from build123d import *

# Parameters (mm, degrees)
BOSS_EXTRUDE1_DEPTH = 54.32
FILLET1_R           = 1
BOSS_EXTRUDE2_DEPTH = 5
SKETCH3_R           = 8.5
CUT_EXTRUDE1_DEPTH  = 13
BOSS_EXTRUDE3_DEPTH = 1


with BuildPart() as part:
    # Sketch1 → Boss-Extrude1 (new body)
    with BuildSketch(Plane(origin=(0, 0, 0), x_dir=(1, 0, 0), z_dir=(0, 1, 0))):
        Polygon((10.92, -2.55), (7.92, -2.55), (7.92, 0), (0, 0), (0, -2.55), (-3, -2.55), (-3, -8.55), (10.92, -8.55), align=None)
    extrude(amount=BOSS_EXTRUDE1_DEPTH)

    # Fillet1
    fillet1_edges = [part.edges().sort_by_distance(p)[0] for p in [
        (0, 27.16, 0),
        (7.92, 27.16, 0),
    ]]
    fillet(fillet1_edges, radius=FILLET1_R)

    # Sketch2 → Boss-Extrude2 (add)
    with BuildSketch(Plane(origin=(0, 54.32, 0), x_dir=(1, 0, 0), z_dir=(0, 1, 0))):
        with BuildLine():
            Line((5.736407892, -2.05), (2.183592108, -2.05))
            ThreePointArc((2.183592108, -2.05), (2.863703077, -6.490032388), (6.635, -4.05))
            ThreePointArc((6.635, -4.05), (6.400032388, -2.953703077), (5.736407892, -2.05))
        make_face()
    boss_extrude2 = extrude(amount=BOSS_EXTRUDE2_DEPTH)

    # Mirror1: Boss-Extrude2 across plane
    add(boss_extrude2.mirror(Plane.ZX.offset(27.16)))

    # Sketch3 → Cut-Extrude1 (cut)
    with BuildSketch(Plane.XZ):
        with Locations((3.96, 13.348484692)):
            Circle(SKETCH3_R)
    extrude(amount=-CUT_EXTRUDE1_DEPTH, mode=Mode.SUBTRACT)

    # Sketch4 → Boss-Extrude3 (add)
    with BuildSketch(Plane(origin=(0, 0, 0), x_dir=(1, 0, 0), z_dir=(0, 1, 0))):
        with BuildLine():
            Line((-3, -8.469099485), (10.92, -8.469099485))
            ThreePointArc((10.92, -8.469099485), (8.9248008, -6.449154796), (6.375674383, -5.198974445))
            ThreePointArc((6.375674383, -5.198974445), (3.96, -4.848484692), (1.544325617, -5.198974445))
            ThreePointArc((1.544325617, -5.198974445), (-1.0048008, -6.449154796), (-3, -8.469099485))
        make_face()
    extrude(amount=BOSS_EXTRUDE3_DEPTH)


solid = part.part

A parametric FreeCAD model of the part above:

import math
import FreeCAD as App
import Part
import Sketcher
Q = App.Units.Quantity


def edges_at(feature, points):
    """Names of the edges that pass closest to the given points."""
    edges = feature.Shape.Edges
    near = lambda p: min(range(len(edges)), key=lambda i: edges[i].distToShape(Part.Vertex(*p))[0])
    return sorted({f"Edge{near(p) + 1}" for p in points})


def add_polygon(sketch, points):
    """Adds a closed chain of lines whose ends are joined by coincident constraints."""
    first, n = sketch.GeometryCount, len(points)
    for a, b in zip(points, points[1:] + points[:1]):
        sketch.addGeometry(Part.LineSegment(App.Vector(*a, 0), App.Vector(*b, 0)), False)
    for i in range(n):
        sketch.addConstraint(Sketcher.Constraint("Coincident", first + i, 2, first + (i + 1) % n, 1))

doc = App.newDocument("Part")
params = doc.addObject("Spreadsheet::Sheet", "Params")
for row, (alias, value) in enumerate([
    ("sketch1_width", "3 mm"),
    ("sketch1_height", "6 mm"),
    ("sketch1_width2", "7.92 mm"),
    ("sketch1_height2", "2.55 mm"),
    ("pad1_length", "54.32 mm"),
    ("fillet_radius", "1 mm"),
    ("pad2_length", "5 mm"),
    ("sketch3_diameter", "17 mm"),
    ("pocket1_length", "13 mm"),
    ("sketch4_radius", "8.5 mm"),
    ("sketch4_width", "13.92 mm"),
    ("pad3_length", "1 mm"),
], start=1):
    params.set(f"A{row}", alias)
    params.set(f"B{row}", "=" + value)
    params.setAlias(f"B{row}", alias)

body = doc.addObject("PartDesign::Body", "Body")

# Sketch on XZ plane
sketch1 = body.newObject("Sketcher::SketchObject", "Sketch")
sketch1.AttachmentSupport = (doc.getObject("XZ_Plane"), [""])
sketch1.MapMode = "FlatFace"
add_polygon(sketch1, [(10.9, 2.5), (7.9, 2.5), (7.9, 0), (0, 0), (0, 2.5), (-3, 2.5), (-3, 8.6), (10.9, 8.6)])  # lines 0-7
sketch1.addConstraint([
    Sketcher.Constraint("Horizontal", 0),
    Sketcher.Constraint("Vertical", 1),
    Sketcher.Constraint("Horizontal", 2),
    Sketcher.Constraint("Vertical", 3),
    Sketcher.Constraint("Horizontal", 4),
    Sketcher.Constraint("Vertical", 5),
    Sketcher.Constraint("Horizontal", 6),
    Sketcher.Constraint("Vertical", 7),
    Sketcher.Constraint("Coincident", 2, 2, -1, 1),
    Sketcher.Constraint("Horizontal", 0, 2, 3, 2),
    Sketcher.Constraint("Equal", 0, 4),
    Sketcher.Constraint("DistanceX", 0, 2, 0, 1, Q("3 mm")),
    Sketcher.Constraint("DistanceY", 5, 1, 5, 2, Q("6 mm")),
    Sketcher.Constraint("DistanceX", 2, 2, 2, 1, Q("7.92 mm")),
    Sketcher.Constraint("DistanceY", 1, 2, 1, 1, Q("2.55 mm")),
])
sketch1.setExpression("Constraints[19]", "Params.sketch1_width")
sketch1.setExpression("Constraints[20]", "Params.sketch1_height")
sketch1.setExpression("Constraints[21]", "Params.sketch1_width2")
sketch1.setExpression("Constraints[22]", "Params.sketch1_height2")
pad1 = body.newObject("PartDesign::Pad", "Pad")
pad1.Profile = sketch1
pad1.setExpression("Length", "Params.pad1_length")
pad1.Reversed = True
doc.recompute()

fillet = body.newObject("PartDesign::Fillet", "Fillet")
fillet.Base = (pad1, edges_at(pad1, [(0, 27.16, 0), (7.92, 27.16, 0)]))
fillet.setExpression("Radius", "Params.fillet_radius")

# Sketch on XZ plane
sketch2 = body.newObject("Sketcher::SketchObject", "Sketch001")
sketch2.AttachmentSupport = (doc.getObject("XZ_Plane"), [""])
sketch2.MapMode = "FlatFace"
sketch2.AttachmentOffset = App.Placement(App.Vector(0, 0, -54.32), App.Rotation())
sketch2.addGeometry([
    Part.LineSegment(App.Vector(5.7, 2, 0), App.Vector(2.2, 2, 0)),
    Part.ArcOfCircle(Part.Circle(App.Vector(4, 4, 0), App.Vector(0, 0, 1), 2.7), math.radians(0), math.radians(228)),
    Part.ArcOfCircle(Part.Circle(App.Vector(4, 4.1, 0), App.Vector(0, 0, 1), 2.7), math.radians(-48), math.radians(0)),
], False)
sketch2.addConstraint([
    Sketcher.Constraint("Coincident", 0, 2, 1, 2),
    Sketcher.Constraint("Tangent", 1, 1, 2, 2),
    Sketcher.Constraint("Coincident", 2, 1, 0, 1),
    Sketcher.Constraint("Horizontal", 0),
    Sketcher.Constraint("Equal", 1, 2),
    Sketcher.Constraint("Horizontal", 2, 3, 1, 1),
    Sketcher.Constraint("Radius", 1, Q("2.675 mm")),
    Sketcher.Constraint("DistanceY", 0, 2, 2, 3, Q("2 mm")),
    Sketcher.Constraint("DistanceX", -1, 1, 1, 3, Q("3.96 mm")),
    Sketcher.Constraint("DistanceY", -1, 1, 1, 3, Q("4.05 mm")),
])
pad2 = body.newObject("PartDesign::Pad", "Pad001")
pad2.Profile = sketch2
pad2.setExpression("Length", "Params.pad2_length")
pad2.Reversed = True
doc.recompute()

datumplane = body.newObject("PartDesign::Plane", "DatumPlane")
datumplane.AttachmentSupport = (doc.getObject("XZ_Plane"), [""])
datumplane.MapMode = "FlatFace"
datumplane.AttachmentOffset = App.Placement(App.Vector(0, 0, -27.16), App.Rotation())
mirrored = body.newObject("PartDesign::Mirrored", "Mirrored")
mirrored.Originals = [pad2]
mirrored.MirrorPlane = (datumplane, [""])
body.Tip = mirrored

# Sketch on XZ plane
sketch3 = body.newObject("Sketcher::SketchObject", "Sketch002")
sketch3.AttachmentSupport = (doc.getObject("XZ_Plane"), [""])
sketch3.MapMode = "FlatFace"
sketch3.addGeometry(Part.Circle(App.Vector(4, 13, 0), App.Vector(0, 0, 1), 8), False)
sketch3.addConstraint([
    Sketcher.Constraint("Diameter", 0, Q("17 mm")),
    Sketcher.Constraint("DistanceX", -1, 1, 0, 3, Q("3.96 mm")),
    Sketcher.Constraint("DistanceY", -1, 1, 0, 3, Q("13.348485 mm")),
])
sketch3.setExpression("Constraints[0]", "Params.sketch3_diameter")
pocket1 = body.newObject("PartDesign::Pocket", "Pocket")
pocket1.Profile = sketch3
pocket1.setExpression("Length", "Params.pocket1_length")

# Sketch on XZ plane
sketch4 = body.newObject("Sketcher::SketchObject", "Sketch003")
sketch4.AttachmentSupport = (doc.getObject("XZ_Plane"), [""])
sketch4.MapMode = "FlatFace"
sketch4.addGeometry([
    Part.LineSegment(App.Vector(-3, 8.5, 0), App.Vector(10.9, 8.5, 0)),
    Part.ArcOfCircle(Part.Circle(App.Vector(4, 13.3, 0), App.Vector(0, 0, 1), 8.5), math.radians(-73), math.radians(-35)),
    Part.ArcOfCircle(Part.Circle(App.Vector(4, 13.3, 0), App.Vector(0, 0, 1), 8.5), math.radians(-107), math.radians(-73)),
    Part.ArcOfCircle(Part.Circle(App.Vector(4, 13.3, 0), App.Vector(0, 0, 1), 8.5), math.radians(-145), math.radians(-107)),
], False)
sketch4.addConstraint([
    Sketcher.Constraint("Coincident", 0, 2, 1, 2),
    Sketcher.Constraint("Tangent", 1, 1, 2, 2),
    Sketcher.Constraint("Tangent", 2, 1, 3, 2),
    Sketcher.Constraint("Coincident", 3, 1, 0, 1),
    Sketcher.Constraint("Horizontal", 0),
    Sketcher.Constraint("Coincident", 3, 3, 1, 3),
    Sketcher.Constraint("Horizontal", 1, 1, 2, 1),
    Sketcher.Constraint("Radius", 1, Q("8.5 mm")),
    Sketcher.Constraint("DistanceX", 3, 1, -1, 1, Q("3 mm")),
    Sketcher.Constraint("DistanceX", 0, 1, 0, 2, Q("13.92 mm")),
    Sketcher.Constraint("DistanceY", -1, 1, 0, 2, Q("8.469099 mm")),
    Sketcher.Constraint("DistanceY", 1, 1, 2, 3, Q("8.14951 mm")),
])
sketch4.setExpression("Constraints[7]", "Params.sketch4_radius")
sketch4.setExpression("Constraints[9]", "Params.sketch4_width")
pad3 = body.newObject("PartDesign::Pad", "Pad002")
pad3.Profile = sketch4
pad3.setExpression("Length", "Params.pad3_length")
pad3.Reversed = True

doc.recompute()
